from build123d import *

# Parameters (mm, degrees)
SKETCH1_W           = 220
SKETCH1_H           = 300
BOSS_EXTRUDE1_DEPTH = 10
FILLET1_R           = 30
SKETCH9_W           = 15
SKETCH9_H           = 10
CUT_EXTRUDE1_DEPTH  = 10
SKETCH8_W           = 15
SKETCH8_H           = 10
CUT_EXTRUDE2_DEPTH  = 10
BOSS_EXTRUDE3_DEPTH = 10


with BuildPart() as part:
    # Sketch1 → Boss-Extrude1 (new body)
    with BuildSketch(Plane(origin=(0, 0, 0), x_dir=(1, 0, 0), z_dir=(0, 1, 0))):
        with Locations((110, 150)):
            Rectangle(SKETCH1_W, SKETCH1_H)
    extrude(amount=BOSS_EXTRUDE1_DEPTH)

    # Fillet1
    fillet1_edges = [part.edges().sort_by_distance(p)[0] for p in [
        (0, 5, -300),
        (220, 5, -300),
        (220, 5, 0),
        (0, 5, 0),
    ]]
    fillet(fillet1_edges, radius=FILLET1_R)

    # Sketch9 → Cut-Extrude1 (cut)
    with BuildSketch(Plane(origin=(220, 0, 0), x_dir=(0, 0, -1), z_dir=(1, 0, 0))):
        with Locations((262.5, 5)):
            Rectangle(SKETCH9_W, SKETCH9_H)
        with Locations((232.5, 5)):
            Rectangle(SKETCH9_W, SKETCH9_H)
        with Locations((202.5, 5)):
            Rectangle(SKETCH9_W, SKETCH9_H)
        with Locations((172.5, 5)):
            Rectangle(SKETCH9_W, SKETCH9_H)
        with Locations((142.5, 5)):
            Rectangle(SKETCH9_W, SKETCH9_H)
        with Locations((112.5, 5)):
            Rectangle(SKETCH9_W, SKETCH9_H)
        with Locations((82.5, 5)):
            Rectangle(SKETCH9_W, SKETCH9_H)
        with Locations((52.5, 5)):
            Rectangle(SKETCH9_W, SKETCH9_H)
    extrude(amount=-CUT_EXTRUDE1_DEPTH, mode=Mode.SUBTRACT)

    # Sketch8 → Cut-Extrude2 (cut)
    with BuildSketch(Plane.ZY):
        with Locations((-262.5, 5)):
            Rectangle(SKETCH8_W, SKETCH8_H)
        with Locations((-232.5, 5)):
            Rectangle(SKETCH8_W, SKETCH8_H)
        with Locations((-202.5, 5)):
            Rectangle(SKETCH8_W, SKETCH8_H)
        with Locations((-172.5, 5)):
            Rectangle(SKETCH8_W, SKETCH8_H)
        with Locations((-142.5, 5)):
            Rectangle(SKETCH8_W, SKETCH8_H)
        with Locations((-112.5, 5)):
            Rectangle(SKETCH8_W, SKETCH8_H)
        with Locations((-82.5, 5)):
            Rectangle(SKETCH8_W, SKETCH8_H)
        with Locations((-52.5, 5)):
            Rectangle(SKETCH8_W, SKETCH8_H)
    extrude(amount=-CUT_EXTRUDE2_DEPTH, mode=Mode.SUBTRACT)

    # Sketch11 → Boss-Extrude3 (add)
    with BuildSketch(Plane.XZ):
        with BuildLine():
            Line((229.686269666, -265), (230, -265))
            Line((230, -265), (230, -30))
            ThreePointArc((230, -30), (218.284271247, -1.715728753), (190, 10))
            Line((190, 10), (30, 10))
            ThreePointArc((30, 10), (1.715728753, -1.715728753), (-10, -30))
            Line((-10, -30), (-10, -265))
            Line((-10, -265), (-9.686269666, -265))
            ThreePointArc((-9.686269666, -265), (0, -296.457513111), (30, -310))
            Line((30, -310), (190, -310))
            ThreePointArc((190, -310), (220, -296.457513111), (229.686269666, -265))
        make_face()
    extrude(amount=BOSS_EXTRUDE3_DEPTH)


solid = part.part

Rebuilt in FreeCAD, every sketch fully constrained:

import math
import FreeCAD as App
import Part
import Sketcher


def edges_at(feature, points):
    """Names of the edges that pass closest to the given points."""
    edges = feature.Shape.Edges
    near = lambda p: min(range(len(edges)), key=lambda i: edges[i].distToShape(Part.Vertex(*p))[0])
    return sorted({f"Edge{near(p) + 1}" for p in points})

doc = App.newDocument("Part")
body = doc.addObject("PartDesign::Body", "Body")

# Sketch on XZ plane
sketch1 = doc.addObject("Sketcher::SketchObject", "Sketch")
body.addObject(sketch1)
sketch1.AttachmentSupport = (doc.XZ_Plane, [""])
sketch1.MapMode = "FlatFace"
sketch1.addGeometry(Part.LineSegment(App.Vector(0, -300, 0), App.Vector(0, 0, 0)), False)
sketch1.addGeometry(Part.LineSegment(App.Vector(0, 0, 0), App.Vector(220, 0, 0)), False)
sketch1.addGeometry(Part.LineSegment(App.Vector(220, 0, 0), App.Vector(220, -300, 0)), False)
sketch1.addGeometry(Part.LineSegment(App.Vector(220, -300, 0), App.Vector(0, -300, 0)), False)
sketch1.addConstraint(Sketcher.Constraint("Coincident", 0, 2, 1, 1))
sketch1.addConstraint(Sketcher.Constraint("Coincident", 1, 2, 2, 1))
sketch1.addConstraint(Sketcher.Constraint("Coincident", 2, 2, 3, 1))
sketch1.addConstraint(Sketcher.Constraint("Coincident", 3, 2, 0, 1))
sketch1.addConstraint(Sketcher.Constraint("Vertical", 0))
sketch1.addConstraint(Sketcher.Constraint("Horizontal", 1))
sketch1.addConstraint(Sketcher.Constraint("Vertical", 2))
sketch1.addConstraint(Sketcher.Constraint("Horizontal", 3))
sketch1.addConstraint(Sketcher.Constraint("Coincident", 0, 2, -1, 1))
sketch1.addConstraint(Sketcher.Constraint("DistanceX", 1, 1, 1, 2, 220.0))
sketch1.addConstraint(Sketcher.Constraint("DistanceY", 0, 1, 0, 2, 300.0))
pad1 = doc.addObject("PartDesign::Pad", "Pad")
body.addObject(pad1)
pad1.Profile = sketch1
pad1.Length = 10
pad1.Reversed = True
doc.recompute()

fillet = doc.addObject("PartDesign::Fillet", "Fillet")
body.addObject(fillet)
fillet.Base = (pad1, edges_at(pad1, [
    (0, 5, -300),
    (220, 5, -300),
    (220, 5, 0),
    (0, 5, 0),
]))
fillet.Radius = 30

# Sketch on YZ plane
sketch2 = doc.addObject("Sketcher::SketchObject", "Sketch001")
body.addObject(sketch2)
sketch2.AttachmentSupport = (doc.YZ_Plane, [""])
sketch2.MapMode = "FlatFace"
sketch2.AttachmentOffset = App.Placement(App.Vector(0, 0, 220), App.Rotation())
sketch2.addGeometry(Part.LineSegment(App.Vector(10, -255, 0), App.Vector(0, -255, 0)), False)
sketch2.addGeometry(Part.LineSegment(App.Vector(0, -255, 0), App.Vector(0, -270, 0)), False)
sketch2.addGeometry(Part.LineSegment(App.Vector(0, -270, 0), App.Vector(10, -270, 0)), False)
sketch2.addGeometry(Part.LineSegment(App.Vector(10, -270, 0), App.Vector(10, -255, 0)), False)
sketch2.addGeometry(Part.LineSegment(App.Vector(10, -225, 0), App.Vector(0, -225, 0)), False)
sketch2.addGeometry(Part.LineSegment(App.Vector(0, -225, 0), App.Vector(0, -240, 0)), False)
sketch2.addGeometry(Part.LineSegment(App.Vector(0, -240, 0), App.Vector(10, -240, 0)), False)
sketch2.addGeometry(Part.LineSegment(App.Vector(10, -240, 0), App.Vector(10, -225, 0)), False)
sketch2.addGeometry(Part.LineSegment(App.Vector(10, -195, 0), App.Vector(0, -195, 0)), False)
sketch2.addGeometry(Part.LineSegment(App.Vector(0, -195, 0), App.Vector(0, -210, 0)), False)
sketch2.addGeometry(Part.LineSegment(App.Vector(0, -210, 0), App.Vector(10, -210, 0)), False)
sketch2.addGeometry(Part.LineSegment(App.Vector(10, -210, 0), App.Vector(10, -195, 0)), False)
sketch2.addGeometry(Part.LineSegment(App.Vector(10, -165, 0), App.Vector(0, -165, 0)), False)
sketch2.addGeometry(Part.LineSegment(App.Vector(0, -165, 0), App.Vector(0, -180, 0)), False)
sketch2.addGeometry(Part.LineSegment(App.Vector(0, -180, 0), App.Vector(10, -180, 0)), False)
sketch2.addGeometry(Part.LineSegment(App.Vector(10, -180, 0), App.Vector(10, -165, 0)), False)
sketch2.addGeometry(Part.LineSegment(App.Vector(10, -135, 0), App.Vector(0, -135, 0)), False)
sketch2.addGeometry(Part.LineSegment(App.Vector(0, -135, 0), App.Vector(0, -150, 0)), False)
sketch2.addGeometry(Part.LineSegment(App.Vector(0, -150, 0), App.Vector(10, -150, 0)), False)
sketch2.addGeometry(Part.LineSegment(App.Vector(10, -150, 0), App.Vector(10, -135, 0)), False)
sketch2.addGeometry(Part.LineSegment(App.Vector(10, -105, 0), App.Vector(0, -105, 0)), False)
sketch2.addGeometry(Part.LineSegment(App.Vector(0, -105, 0), App.Vector(0, -120, 0)), False)
sketch2.addGeometry(Part.LineSegment(App.Vector(0, -120, 0), App.Vector(10, -120, 0)), False)
sketch2.addGeometry(Part.LineSegment(App.Vector(10, -120, 0), App.Vector(10, -105, 0)), False)
sketch2.addGeometry(Part.LineSegment(App.Vector(10, -75, 0), App.Vector(0, -75, 0)), False)
sketch2.addGeometry(Part.LineSegment(App.Vector(0, -75, 0), App.Vector(0, -90, 0)), False)
sketch2.addGeometry(Part.LineSegment(App.Vector(0, -90, 0), App.Vector(10, -90, 0)), False)
sketch2.addGeometry(Part.LineSegment(App.Vector(10, -90, 0), App.Vector(10, -75, 0)), False)
sketch2.addGeometry(Part.LineSegment(App.Vector(10, -45, 0), App.Vector(0, -45, 0)), False)
sketch2.addGeometry(Part.LineSegment(App.Vector(0, -45, 0), App.Vector(0, -60, 0)), False)
sketch2.addGeometry(Part.LineSegment(App.Vector(0, -60, 0), App.Vector(10, -60, 0)), False)
sketch2.addGeometry(Part.LineSegment(App.Vector(10, -60, 0), App.Vector(10, -45, 0)), False)
sketch2.addConstraint(Sketcher.Constraint("Coincident", 0, 2, 1, 1))
sketch2.addConstraint(Sketcher.Constraint("Coincident", 1, 2, 2, 1))
sketch2.addConstraint(Sketcher.Constraint("Coincident", 2, 2, 3, 1))
sketch2.addConstraint(Sketcher.Constraint("Coincident", 3, 2, 0, 1))
sketch2.addConstraint(Sketcher.Constraint("Coincident", 4, 2, 5, 1))
sketch2.addConstraint(Sketcher.Constraint("Coincident", 5, 2, 6, 1))
sketch2.addConstraint(Sketcher.Constraint("Coincident", 6, 2, 7, 1))
sketch2.addConstraint(Sketcher.Constraint("Coincident", 7, 2, 4, 1))
sketch2.addConstraint(Sketcher.Constraint("Coincident", 8, 2, 9, 1))
sketch2.addConstraint(Sketcher.Constraint("Coincident", 9, 2, 10, 1))
sketch2.addConstraint(Sketcher.Constraint("Coincident", 10, 2, 11, 1))
sketch2.addConstraint(Sketcher.Constraint("Coincident", 11, 2, 8, 1))
sketch2.addConstraint(Sketcher.Constraint("Coincident", 12, 2, 13, 1))
sketch2.addConstraint(Sketcher.Constraint("Coincident", 13, 2, 14, 1))
sketch2.addConstraint(Sketcher.Constraint("Coincident", 14, 2, 15, 1))
sketch2.addConstraint(Sketcher.Constraint("Coincident", 15, 2, 12, 1))
sketch2.addConstraint(Sketcher.Constraint("Coincident", 16, 2, 17, 1))
sketch2.addConstraint(Sketcher.Constraint("Coincident", 17, 2, 18, 1))
sketch2.addConstraint(Sketcher.Constraint("Coincident", 18, 2, 19, 1))
sketch2.addConstraint(Sketcher.Constraint("Coincident", 19, 2, 16, 1))
sketch2.addConstraint(Sketcher.Constraint("Coincident", 20, 2, 21, 1))
sketch2.addConstraint(Sketcher.Constraint("Coincident", 21, 2, 22, 1))
sketch2.addConstraint(Sketcher.Constraint("Coincident", 22, 2, 23, 1))
sketch2.addConstraint(Sketcher.Constraint("Coincident", 23, 2, 20, 1))
sketch2.addConstraint(Sketcher.Constraint("Coincident", 24, 2, 25, 1))
sketch2.addConstraint(Sketcher.Constraint("Coincident", 25, 2, 26, 1))
sketch2.addConstraint(Sketcher.Constraint("Coincident", 26, 2, 27, 1))
sketch2.addConstraint(Sketcher.Constraint("Coincident", 27, 2, 24, 1))
sketch2.addConstraint(Sketcher.Constraint("Coincident", 28, 2, 29, 1))
sketch2.addConstraint(Sketcher.Constraint("Coincident", 29, 2, 30, 1))
sketch2.addConstraint(Sketcher.Constraint("Coincident", 30, 2, 31, 1))
sketch2.addConstraint(Sketcher.Constraint("Coincident", 31, 2, 28, 1))
sketch2.addConstraint(Sketcher.Constraint("Horizontal", 0))
sketch2.addConstraint(Sketcher.Constraint("Vertical", 1))
sketch2.addConstraint(Sketcher.Constraint("Horizontal", 2))
sketch2.addConstraint(Sketcher.Constraint("Vertical", 3))
sketch2.addConstraint(Sketcher.Constraint("Horizontal", 4))
sketch2.addConstraint(Sketcher.Constraint("Vertical", 5))
sketch2.addConstraint(Sketcher.Constraint("Horizontal", 6))
sketch2.addConstraint(Sketcher.Constraint("Vertical", 7))
sketch2.addConstraint(Sketcher.Constraint("Horizontal", 8))
sketch2.addConstraint(Sketcher.Constraint("Vertical", 9))
sketch2.addConstraint(Sketcher.Constraint("Horizontal", 10))
sketch2.addConstraint(Sketcher.Constraint("Vertical", 11))
sketch2.addConstraint(Sketcher.Constraint("Horizontal", 12))
sketch2.addConstraint(Sketcher.Constraint("Vertical", 13))
sketch2.addConstraint(Sketcher.Constraint("Horizontal", 14))
sketch2.addConstraint(Sketcher.Constraint("Vertical", 15))
sketch2.addConstraint(Sketcher.Constraint("Horizontal", 16))
sketch2.addConstraint(Sketcher.Constraint("Vertical", 17))
sketch2.addConstraint(Sketcher.Constraint("Horizontal", 18))
sketch2.addConstraint(Sketcher.Constraint("Vertical", 19))
sketch2.addConstraint(Sketcher.Constraint("Horizontal", 20))
sketch2.addConstraint(Sketcher.Constraint("Vertical", 21))
sketch2.addConstraint(Sketcher.Constraint("Horizontal", 22))
sketch2.addConstraint(Sketcher.Constraint("Vertical", 23))
sketch2.addConstraint(Sketcher.Constraint("Horizontal", 24))
sketch2.addConstraint(Sketcher.Constraint("Vertical", 25))
sketch2.addConstraint(Sketcher.Constraint("Horizontal", 26))
sketch2.addConstraint(Sketcher.Constraint("Vertical", 27))
sketch2.addConstraint(Sketcher.Constraint("Horizontal", 28))
sketch2.addConstraint(Sketcher.Constraint("Vertical", 29))
sketch2.addConstraint(Sketcher.Constraint("Horizontal", 30))
sketch2.addConstraint(Sketcher.Constraint("Vertical", 31))
sketch2.addConstraint(Sketcher.Constraint("PointOnObject", 0, 2, -2))
sketch2.addConstraint(Sketcher.Constraint("PointOnObject", 4, 2, -2))
sketch2.addConstraint(Sketcher.Constraint("PointOnObject", 8, 2, -2))
sketch2.addConstraint(Sketcher.Constraint("PointOnObject", 12, 2, -2))
sketch2.addConstraint(Sketcher.Constraint("PointOnObject", 16, 2, -2))
sketch2.addConstraint(Sketcher.Constraint("PointOnObject", 20, 2, -2))
sketch2.addConstraint(Sketcher.Constraint("PointOnObject", 24, 2, -2))
sketch2.addConstraint(Sketcher.Constraint("PointOnObject", 28, 2, -2))
sketch2.addConstraint(Sketcher.Constraint("Vertical", 3, 2, 6, 2))
sketch2.addConstraint(Sketcher.Constraint("Vertical", 7, 2, 10, 2))
sketch2.addConstraint(Sketcher.Constraint("Vertical", 11, 2, 14, 2))
sketch2.addConstraint(Sketcher.Constraint("Vertical", 15, 2, 18, 2))
sketch2.addConstraint(Sketcher.Constraint("Vertical", 19, 2, 22, 2))
sketch2.addConstraint(Sketcher.Constraint("Vertical", 23, 2, 26, 2))
sketch2.addConstraint(Sketcher.Constraint("Vertical", 27, 2, 30, 2))
sketch2.addConstraint(Sketcher.Constraint("Equal", 3, 5))
sketch2.addConstraint(Sketcher.Constraint("Equal", 7, 9))
sketch2.addConstraint(Sketcher.Constraint("Equal", 11, 13))
sketch2.addConstraint(Sketcher.Constraint("Equal", 15, 17))
sketch2.addConstraint(Sketcher.Constraint("Equal", 19, 21))
sketch2.addConstraint(Sketcher.Constraint("Equal", 23, 25))
sketch2.addConstraint(Sketcher.Constraint("Equal", 27, 29))
sketch2.addConstraint(Sketcher.Constraint("DistanceX", 0, 2, 0, 1, 10.0))
sketch2.addConstraint(Sketcher.Constraint("DistanceY", 1, 2, 1, 1, 15.0))
sketch2.addConstraint(Sketcher.Constraint("DistanceY", 0, 2, -1, 1, 255.0))
sketch2.addConstraint(Sketcher.Constraint("DistanceY", 4, 2, -1, 1, 225.0))
sketch2.addConstraint(Sketcher.Constraint("DistanceY", 8, 2, -1, 1, 195.0))
sketch2.addConstraint(Sketcher.Constraint("DistanceY", 12, 2, -1, 1, 165.0))
sketch2.addConstraint(Sketcher.Constraint("DistanceY", 16, 2, -1, 1, 135.0))
sketch2.addConstraint(Sketcher.Constraint("DistanceY", 20, 2, -1, 1, 105.0))
sketch2.addConstraint(Sketcher.Constraint("DistanceY", 24, 2, -1, 1, 75.0))
sketch2.addConstraint(Sketcher.Constraint("DistanceY", 28, 2, -1, 1, 45.0))
pocket1 = doc.addObject("PartDesign::Pocket", "Pocket")
body.addObject(pocket1)
pocket1.Profile = sketch2
pocket1.Length = 10

# Sketch on YZ plane
sketch3 = doc.addObject("Sketcher::SketchObject", "Sketch002")
body.addObject(sketch3)
sketch3.AttachmentSupport = (doc.YZ_Plane, [""])
sketch3.MapMode = "FlatFace"
sketch3.addGeometry(Part.LineSegment(App.Vector(10, -270, 0), App.Vector(0, -270, 0)), False)
sketch3.addGeometry(Part.LineSegment(App.Vector(0, -270, 0), App.Vector(0, -255, 0)), False)
sketch3.addGeometry(Part.LineSegment(App.Vector(0, -255, 0), App.Vector(10, -255, 0)), False)
sketch3.addGeometry(Part.LineSegment(App.Vector(10, -255, 0), App.Vector(10, -270, 0)), False)
sketch3.addGeometry(Part.LineSegment(App.Vector(10, -240, 0), App.Vector(0, -240, 0)), False)
sketch3.addGeometry(Part.LineSegment(App.Vector(0, -240, 0), App.Vector(0, -225, 0)), False)
sketch3.addGeometry(Part.LineSegment(App.Vector(0, -225, 0), App.Vector(10, -225, 0)), False)
sketch3.addGeometry(Part.LineSegment(App.Vector(10, -225, 0), App.Vector(10, -240, 0)), False)
sketch3.addGeometry(Part.LineSegment(App.Vector(10, -210, 0), App.Vector(0, -210, 0)), False)
sketch3.addGeometry(Part.LineSegment(App.Vector(0, -210, 0), App.Vector(0, -195, 0)), False)
sketch3.addGeometry(Part.LineSegment(App.Vector(0, -195, 0), App.Vector(10, -195, 0)), False)
sketch3.addGeometry(Part.LineSegment(App.Vector(10, -195, 0), App.Vector(10, -210, 0)), False)
sketch3.addGeometry(Part.LineSegment(App.Vector(10, -180, 0), App.Vector(0, -180, 0)), False)
sketch3.addGeometry(Part.LineSegment(App.Vector(0, -180, 0), App.Vector(0, -165, 0)), False)
sketch3.addGeometry(Part.LineSegment(App.Vector(0, -165, 0), App.Vector(10, -165, 0)), False)
sketch3.addGeometry(Part.LineSegment(App.Vector(10, -165, 0), App.Vector(10, -180, 0)), False)
sketch3.addGeometry(Part.LineSegment(App.Vector(10, -150, 0), App.Vector(0, -150, 0)), False)
sketch3.addGeometry(Part.LineSegment(App.Vector(0, -150, 0), App.Vector(0, -135, 0)), False)
sketch3.addGeometry(Part.LineSegment(App.Vector(0, -135, 0), App.Vector(10, -135, 0)), False)
sketch3.addGeometry(Part.LineSegment(App.Vector(10, -135, 0), App.Vector(10, -150, 0)), False)
sketch3.addGeometry(Part.LineSegment(App.Vector(10, -120, 0), App.Vector(0, -120, 0)), False)
sketch3.addGeometry(Part.LineSegment(App.Vector(0, -120, 0), App.Vector(0, -105, 0)), False)
sketch3.addGeometry(Part.LineSegment(App.Vector(0, -105, 0), App.Vector(10, -105, 0)), False)
sketch3.addGeometry(Part.LineSegment(App.Vector(10, -105, 0), App.Vector(10, -120, 0)), False)
sketch3.addGeometry(Part.LineSegment(App.Vector(10, -90, 0), App.Vector(0, -90, 0)), False)
sketch3.addGeometry(Part.LineSegment(App.Vector(0, -90, 0), App.Vector(0, -75, 0)), False)
sketch3.addGeometry(Part.LineSegment(App.Vector(0, -75, 0), App.Vector(10, -75, 0)), False)
sketch3.addGeometry(Part.LineSegment(App.Vector(10, -75, 0), App.Vector(10, -90, 0)), False)
sketch3.addGeometry(Part.LineSegment(App.Vector(10, -60, 0), App.Vector(0, -60, 0)), False)
sketch3.addGeometry(Part.LineSegment(App.Vector(0, -60, 0), App.Vector(0, -45, 0)), False)
sketch3.addGeometry(Part.LineSegment(App.Vector(0, -45, 0), App.Vector(10, -45, 0)), False)
sketch3.addGeometry(Part.LineSegment(App.Vector(10, -45, 0), App.Vector(10, -60, 0)), False)
sketch3.addConstraint(Sketcher.Constraint("Coincident", 0, 2, 1, 1))
sketch3.addConstraint(Sketcher.Constraint("Coincident", 1, 2, 2, 1))
sketch3.addConstraint(Sketcher.Constraint("Coincident", 2, 2, 3, 1))
sketch3.addConstraint(Sketcher.Constraint("Coincident", 3, 2, 0, 1))
sketch3.addConstraint(Sketcher.Constraint("Coincident", 4, 2, 5, 1))
sketch3.addConstraint(Sketcher.Constraint("Coincident", 5, 2, 6, 1))
sketch3.addConstraint(Sketcher.Constraint("Coincident", 6, 2, 7, 1))
sketch3.addConstraint(Sketcher.Constraint("Coincident", 7, 2, 4, 1))
sketch3.addConstraint(Sketcher.Constraint("Coincident", 8, 2, 9, 1))
sketch3.addConstraint(Sketcher.Constraint("Coincident", 9, 2, 10, 1))
sketch3.addConstraint(Sketcher.Constraint("Coincident", 10, 2, 11, 1))
sketch3.addConstraint(Sketcher.Constraint("Coincident", 11, 2, 8, 1))
sketch3.addConstraint(Sketcher.Constraint("Coincident", 12, 2, 13, 1))
sketch3.addConstraint(Sketcher.Constraint("Coincident", 13, 2, 14, 1))
sketch3.addConstraint(Sketcher.Constraint("Coincident", 14, 2, 15, 1))
sketch3.addConstraint(Sketcher.Constraint("Coincident", 15, 2, 12, 1))
sketch3.addConstraint(Sketcher.Constraint("Coincident", 16, 2, 17, 1))
sketch3.addConstraint(Sketcher.Constraint("Coincident", 17, 2, 18, 1))
sketch3.addConstraint(Sketcher.Constraint("Coincident", 18, 2, 19, 1))
sketch3.addConstraint(Sketcher.Constraint("Coincident", 19, 2, 16, 1))
sketch3.addConstraint(Sketcher.Constraint("Coincident", 20, 2, 21, 1))
sketch3.addConstraint(Sketcher.Constraint("Coincident", 21, 2, 22, 1))
sketch3.addConstraint(Sketcher.Constraint("Coincident", 22, 2, 23, 1))
sketch3.addConstraint(Sketcher.Constraint("Coincident", 23, 2, 20, 1))
sketch3.addConstraint(Sketcher.Constraint("Coincident", 24, 2, 25, 1))
sketch3.addConstraint(Sketcher.Constraint("Coincident", 25, 2, 26, 1))
sketch3.addConstraint(Sketcher.Constraint("Coincident", 26, 2, 27, 1))
sketch3.addConstraint(Sketcher.Constraint("Coincident", 27, 2, 24, 1))
sketch3.addConstraint(Sketcher.Constraint("Coincident", 28, 2, 29, 1))
sketch3.addConstraint(Sketcher.Constraint("Coincident", 29, 2, 30, 1))
sketch3.addConstraint(Sketcher.Constraint("Coincident", 30, 2, 31, 1))
sketch3.addConstraint(Sketcher.Constraint("Coincident", 31, 2, 28, 1))
sketch3.addConstraint(Sketcher.Constraint("Horizontal", 0))
sketch3.addConstraint(Sketcher.Constraint("Vertical", 1))
sketch3.addConstraint(Sketcher.Constraint("Horizontal", 2))
sketch3.addConstraint(Sketcher.Constraint("Vertical", 3))
sketch3.addConstraint(Sketcher.Constraint("Horizontal", 4))
sketch3.addConstraint(Sketcher.Constraint("Vertical", 5))
sketch3.addConstraint(Sketcher.Constraint("Horizontal", 6))
sketch3.addConstraint(Sketcher.Constraint("Vertical", 7))
sketch3.addConstraint(Sketcher.Constraint("Horizontal", 8))
sketch3.addConstraint(Sketcher.Constraint("Vertical", 9))
sketch3.addConstraint(Sketcher.Constraint("Horizontal", 10))
sketch3.addConstraint(Sketcher.Constraint("Vertical", 11))
sketch3.addConstraint(Sketcher.Constraint("Horizontal", 12))
sketch3.addConstraint(Sketcher.Constraint("Vertical", 13))
sketch3.addConstraint(Sketcher.Constraint("Horizontal", 14))
sketch3.addConstraint(Sketcher.Constraint("Vertical", 15))
sketch3.addConstraint(Sketcher.Constraint("Horizontal", 16))
sketch3.addConstraint(Sketcher.Constraint("Vertical", 17))
sketch3.addConstraint(Sketcher.Constraint("Horizontal", 18))
sketch3.addConstraint(Sketcher.Constraint("Vertical", 19))
sketch3.addConstraint(Sketcher.Constraint("Horizontal", 20))
sketch3.addConstraint(Sketcher.Constraint("Vertical", 21))
sketch3.addConstraint(Sketcher.Constraint("Horizontal", 22))
sketch3.addConstraint(Sketcher.Constraint("Vertical", 23))
sketch3.addConstraint(Sketcher.Constraint("Horizontal", 24))
sketch3.addConstraint(Sketcher.Constraint("Vertical", 25))
sketch3.addConstraint(Sketcher.Constraint("Horizontal", 26))
sketch3.addConstraint(Sketcher.Constraint("Vertical", 27))
sketch3.addConstraint(Sketcher.Constraint("Horizontal", 28))
sketch3.addConstraint(Sketcher.Constraint("Vertical", 29))
sketch3.addConstraint(Sketcher.Constraint("Horizontal", 30))
sketch3.addConstraint(Sketcher.Constraint("Vertical", 31))
sketch3.addConstraint(Sketcher.Constraint("PointOnObject", 0, 2, -2))
sketch3.addConstraint(Sketcher.Constraint("PointOnObject", 4, 2, -2))
sketch3.addConstraint(Sketcher.Constraint("PointOnObject", 8, 2, -2))
sketch3.addConstraint(Sketcher.Constraint("PointOnObject", 12, 2, -2))
sketch3.addConstraint(Sketcher.Constraint("PointOnObject", 16, 2, -2))
sketch3.addConstraint(Sketcher.Constraint("PointOnObject", 20, 2, -2))
sketch3.addConstraint(Sketcher.Constraint("PointOnObject", 24, 2, -2))
sketch3.addConstraint(Sketcher.Constraint("PointOnObject", 28, 2, -2))
sketch3.addConstraint(Sketcher.Constraint("Vertical", 3, 2, 6, 2))
sketch3.addConstraint(Sketcher.Constraint("Vertical", 7, 2, 10, 2))
sketch3.addConstraint(Sketcher.Constraint("Vertical", 11, 2, 14, 2))
sketch3.addConstraint(Sketcher.Constraint("Vertical", 15, 2, 18, 2))
sketch3.addConstraint(Sketcher.Constraint("Vertical", 19, 2, 22, 2))
sketch3.addConstraint(Sketcher.Constraint("Vertical", 23, 2, 26, 2))
sketch3.addConstraint(Sketcher.Constraint("Vertical", 27, 2, 30, 2))
sketch3.addConstraint(Sketcher.Constraint("Equal", 3, 5))
sketch3.addConstraint(Sketcher.Constraint("Equal", 7, 9))
sketch3.addConstraint(Sketcher.Constraint("Equal", 11, 13))
sketch3.addConstraint(Sketcher.Constraint("Equal", 15, 17))
sketch3.addConstraint(Sketcher.Constraint("Equal", 19, 21))
sketch3.addConstraint(Sketcher.Constraint("Equal", 23, 25))
sketch3.addConstraint(Sketcher.Constraint("Equal", 27, 29))
sketch3.addConstraint(Sketcher.Constraint("DistanceX", 0, 2, 0, 1, 10.0))
sketch3.addConstraint(Sketcher.Constraint("DistanceY", 1, 1, 1, 2, 15.0))
sketch3.addConstraint(Sketcher.Constraint("DistanceY", 0, 2, -1, 1, 270.0))
sketch3.addConstraint(Sketcher.Constraint("DistanceY", 4, 2, -1, 1, 240.0))
sketch3.addConstraint(Sketcher.Constraint("DistanceY", 8, 2, -1, 1, 210.0))
sketch3.addConstraint(Sketcher.Constraint("DistanceY", 12, 2, -1, 1, 180.0))
sketch3.addConstraint(Sketcher.Constraint("DistanceY", 16, 2, -1, 1, 150.0))
sketch3.addConstraint(Sketcher.Constraint("DistanceY", 20, 2, -1, 1, 120.0))
sketch3.addConstraint(Sketcher.Constraint("DistanceY", 24, 2, -1, 1, 90.0))
sketch3.addConstraint(Sketcher.Constraint("DistanceY", 28, 2, -1, 1, 60.0))
pocket2 = doc.addObject("PartDesign::Pocket", "Pocket001")
body.addObject(pocket2)
pocket2.Profile = sketch3
pocket2.Length = 10
pocket2.Reversed = True

# Sketch on XZ plane
sketch4 = doc.addObject("Sketcher::SketchObject", "Sketch003")
body.addObject(sketch4)
sketch4.AttachmentSupport = (doc.XZ_Plane, [""])
sketch4.MapMode = "FlatFace"
sketch4.addGeometry(Part.LineSegment(App.Vector(229.69, -265, 0), App.Vector(230, -265, 0)), False)
sketch4.addGeometry(Part.LineSegment(App.Vector(230, -265, 0), App.Vector(230, -30, 0)), False)
sketch4.addGeometry(Part.ArcOfCircle(Part.Circle(App.Vector(190, -30, 0), App.Vector(0, 0, 1), 40), math.radians(0), math.radians(90)), False)
sketch4.addGeometry(Part.LineSegment(App.Vector(190, 10, 0), App.Vector(30, 10, 0)), False)
sketch4.addGeometry(Part.ArcOfCircle(Part.Circle(App.Vector(30, -30, 0), App.Vector(0, 0, 1), 40), math.radians(90), math.radians(180)), False)
sketch4.addGeometry(Part.LineSegment(App.Vector(-10, -30, 0), App.Vector(-10, -265, 0)), False)
sketch4.addGeometry(Part.LineSegment(App.Vector(-10, -265, 0), App.Vector(-9.69, -265, 0)), False)
sketch4.addGeometry(Part.ArcOfCircle(Part.Circle(App.Vector(30, -270, 0), App.Vector(0, 0, 1), 40), math.radians(173), math.radians(270)), False)
sketch4.addGeometry(Part.LineSegment(App.Vector(30, -310, 0), App.Vector(190, -310, 0)), False)
sketch4.addGeometry(Part.ArcOfCircle(Part.Circle(App.Vector(190, -270, 0), App.Vector(0, 0, 1), 40), math.radians(-90), math.radians(7)), False)
sketch4.addConstraint(Sketcher.Constraint("Coincident", 0, 2, 1, 1))
sketch4.addConstraint(Sketcher.Constraint("Tangent", 1, 2, 2, 1))
sketch4.addConstraint(Sketcher.Constraint("Tangent", 2, 2, 3, 1))
sketch4.addConstraint(Sketcher.Constraint("Tangent", 3, 2, 4, 1))
sketch4.addConstraint(Sketcher.Constraint("Tangent", 4, 2, 5, 1))
sketch4.addConstraint(Sketcher.Constraint("Coincident", 5, 2, 6, 1))
sketch4.addConstraint(Sketcher.Constraint("Coincident", 6, 2, 7, 1))
sketch4.addConstraint(Sketcher.Constraint("Tangent", 7, 2, 8, 1))
sketch4.addConstraint(Sketcher.Constraint("Tangent", 8, 2, 9, 1))
sketch4.addConstraint(Sketcher.Constraint("Coincident", 9, 2, 0, 1))
sketch4.addConstraint(Sketcher.Constraint("Horizontal", 0))
sketch4.addConstraint(Sketcher.Constraint("Vertical", 1))
sketch4.addConstraint(Sketcher.Constraint("Horizontal", 3))
sketch4.addConstraint(Sketcher.Constraint("Vertical", 5))
sketch4.addConstraint(Sketcher.Constraint("Horizontal", 6))
sketch4.addConstraint(Sketcher.Constraint("Horizontal", 8))
sketch4.addConstraint(Sketcher.Constraint("Equal", 2, 4))
sketch4.addConstraint(Sketcher.Constraint("Equal", 4, 7))
sketch4.addConstraint(Sketcher.Constraint("Equal", 7, 9))
sketch4.addConstraint(Sketcher.Constraint("Horizontal", 0, 2, 5, 2))
sketch4.addConstraint(Sketcher.Constraint("Vertical", 4, 3, 7, 3))
sketch4.addConstraint(Sketcher.Constraint("Vertical", 2, 3, 9, 3))
sketch4.addConstraint(Sketcher.Constraint("Radius", 2, 40.0))
sketch4.addConstraint(Sketcher.Constraint("DistanceX", 3, 2, 3, 1, 160.0))
sketch4.addConstraint(Sketcher.Constraint("DistanceY", 1, 1, 1, 2, 235.0))
sketch4.addConstraint(Sketcher.Constraint("DistanceX", -1, 1, 2, 3, 190.0))
sketch4.addConstraint(Sketcher.Constraint("DistanceY", 2, 3, -1, 1, 30.0))
sketch4.addConstraint(Sketcher.Constraint("DistanceY", 7, 3, -1, 1, 270.0))
pad2 = doc.addObject("PartDesign::Pad", "Pad001")
body.addObject(pad2)
pad2.Profile = sketch4
pad2.Length = 10

doc.recompute()
